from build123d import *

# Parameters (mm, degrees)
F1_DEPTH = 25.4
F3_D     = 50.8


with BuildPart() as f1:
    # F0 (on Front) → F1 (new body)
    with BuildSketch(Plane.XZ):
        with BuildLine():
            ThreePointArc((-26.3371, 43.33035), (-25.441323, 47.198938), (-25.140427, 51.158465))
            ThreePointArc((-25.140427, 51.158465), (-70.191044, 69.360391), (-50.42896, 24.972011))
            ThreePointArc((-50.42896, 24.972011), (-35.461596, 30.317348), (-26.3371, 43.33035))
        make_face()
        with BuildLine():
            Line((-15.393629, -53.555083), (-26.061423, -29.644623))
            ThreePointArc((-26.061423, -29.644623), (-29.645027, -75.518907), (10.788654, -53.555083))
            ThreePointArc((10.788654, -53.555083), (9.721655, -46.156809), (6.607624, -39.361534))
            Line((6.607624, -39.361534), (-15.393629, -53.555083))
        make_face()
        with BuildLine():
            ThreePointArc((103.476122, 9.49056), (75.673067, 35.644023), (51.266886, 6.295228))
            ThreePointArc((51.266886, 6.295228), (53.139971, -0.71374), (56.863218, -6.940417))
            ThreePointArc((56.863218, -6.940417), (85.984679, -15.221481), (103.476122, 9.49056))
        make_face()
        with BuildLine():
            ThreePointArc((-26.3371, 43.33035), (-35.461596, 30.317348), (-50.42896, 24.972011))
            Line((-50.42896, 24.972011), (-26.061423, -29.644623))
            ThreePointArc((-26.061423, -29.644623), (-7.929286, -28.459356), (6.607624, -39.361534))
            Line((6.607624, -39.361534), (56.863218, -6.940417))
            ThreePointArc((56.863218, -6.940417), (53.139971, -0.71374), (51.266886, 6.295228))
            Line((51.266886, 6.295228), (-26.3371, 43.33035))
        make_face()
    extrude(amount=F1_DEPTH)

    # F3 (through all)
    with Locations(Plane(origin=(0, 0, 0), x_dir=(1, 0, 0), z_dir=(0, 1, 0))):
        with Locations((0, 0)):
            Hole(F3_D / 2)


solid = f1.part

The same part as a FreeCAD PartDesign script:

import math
import FreeCAD as App
import Part
import Sketcher

V = App.Vector
Q = App.Units.Quantity

doc = App.newDocument("Part")
params = doc.addObject("Spreadsheet::Sheet", "Params")
for row, (alias, value) in enumerate([
    ("pad1_length", "1 in"),
    ("sketch2_diameter", "2 in"),
    ("hole_diameter", "2 in"),
], start=1):
    params.set(f"A{row}", alias)
    params.set(f"B{row}", "=" + value)
    params.setAlias(f"B{row}", alias)

body = doc.addObject("PartDesign::Body", "Body")
body.AllowCompound = True

# Sketch on XZ plane
sketch1 = body.newObject("Sketcher::SketchObject", "Sketch")
sketch1.AttachmentSupport = (doc.getObject("XZ_Plane"), [""])
sketch1.MapMode = "FlatFace"
sketch1.addGeometry([
    Part.ArcOfCircle(Part.Circle(V(-51, 51, 0), V(0, 0, 1), 26), math.radians(-17.38), math.radians(0)),  # 0
    Part.ArcOfCircle(Part.Circle(V(-51, 51, 0), V(0, 0, 1), 26), math.radians(0), math.radians(272)),  # 1
    Part.LineSegment(V(-50, 25, 0), V(-26, -30, 0)),  # 2
    Part.ArcOfCircle(Part.Circle(V(-15, -54, 0), V(0, 0, 1), 26), math.radians(33), math.radians(114)),  # 3
    Part.LineSegment(V(7, -39, 0), V(57, -7, 0)),  # 4
    Part.ArcOfCircle(Part.Circle(V(77, 9, 0), V(0, 0, 1), 26), math.radians(-141), math.radians(0)),  # 5
    Part.ArcOfCircle(Part.Circle(V(77, 9, 0), V(0, 0, 1), 26), math.radians(0), math.radians(187)),  # 6
    Part.LineSegment(V(51, 6, 0), V(-26, 43, 0)),  # 7
    Part.LineSegment(V(-15, -54, 0), V(-26, -30, 0)),  # 8
    Part.ArcOfCircle(Part.Circle(V(-15, -54, 0), V(0, 0, 1), 26), math.radians(114), math.radians(360)),  # 9
    Part.ArcOfCircle(Part.Circle(V(-15, -54, 0), V(0, 0, 1), 26), math.radians(0), math.radians(33)),  # 10
    Part.LineSegment(V(7, -39, 0), V(-15, -54, 0)),  # 11
], False)
sketch1.addConstraint([
    Sketcher.Constraint("Tangent", 0, 2, 1, 1),
    Sketcher.Constraint("Coincident", 1, 2, 2, 1),
    Sketcher.Constraint("Coincident", 2, 2, 3, 2),
    Sketcher.Constraint("Coincident", 3, 1, 4, 1),
    Sketcher.Constraint("Coincident", 4, 2, 5, 1),
    Sketcher.Constraint("Tangent", 5, 2, 6, 1),
    Sketcher.Constraint("Coincident", 6, 2, 7, 1),
    Sketcher.Constraint("Coincident", 7, 2, 0, 1),
    Sketcher.Constraint("Coincident", 8, 2, 9, 1),
    Sketcher.Constraint("Tangent", 9, 2, 10, 1),
    Sketcher.Constraint("Coincident", 10, 2, 11, 1),
    Sketcher.Constraint("Coincident", 11, 2, 8, 1),
    Sketcher.Constraint("Coincident", 9, 3, 3, 3),
    Sketcher.Constraint("Coincident", 8, 2, 2, 2),
    Sketcher.Constraint("Coincident", 10, 2, 3, 1),
    Sketcher.Constraint("Coincident", 11, 2, 3, 3),
    Sketcher.Constraint("Equal", 5, 6),
    Sketcher.Constraint("Parallel", 2, 8),
    Sketcher.Constraint("Parallel", 4, 11),
    Sketcher.Constraint("Horizontal", 1, 3, 0, 2),
    Sketcher.Constraint("Horizontal", 6, 3, 5, 2),
    Sketcher.Constraint("Horizontal", 10, 3, 9, 2),
    Sketcher.Constraint("Equal", 2, 4),
    Sketcher.Constraint("Radius", 5, 26.202399),
    Sketcher.Constraint("Radius", 0, 26.202405),
    Sketcher.Constraint("Radius", 1, 26.202396),
    Sketcher.Constraint("Radius", 3, 26.182284),
    Sketcher.Constraint("DistanceX", 7, 2, -1, 1, 26.3371),
    Sketcher.Constraint("DistanceX", 0, 3, 10, 3, 35.9492),
    Sketcher.Constraint("DistanceX", 3, 1, 5, 3, 70.666099),
    Sketcher.Constraint("Distance", 7, 85.988249),
    Sketcher.Constraint("DistanceX", 0, 3, -1, 1, 51.342832),
    Sketcher.Constraint("DistanceY", -1, 1, 5, 3, 9.49056),
    Sketcher.Constraint("DistanceX", 1, 2, -1, 1, 50.42896),
    Sketcher.Constraint("DistanceY", -1, 1, 1, 2, 24.972011),
    Sketcher.Constraint("DistanceX", -1, 1, 4, 2, 56.863218),
])
pad1 = body.newObject("PartDesign::Pad", "Pad")
pad1.Profile = sketch1
pad1.setExpression("Length", "Params.pad1_length")

# Sketch on XZ plane
sketch2 = body.newObject("Sketcher::SketchObject", "Sketch001")
sketch2.AttachmentSupport = (doc.getObject("XZ_Plane"), [""])
sketch2.MapMode = "FlatFace"
sketch2.addGeometry(Part.Circle(V(0, 0, 0), V(0, 0, 1), 25), False)
sketch2.addConstraint([
    Sketcher.Constraint("Coincident", 0, 3, -1, 1),
    Sketcher.Constraint("Diameter", 0, Q("2 in")),
])
sketch2.setExpression("Constraints[1]", "Params.sketch2_diameter")
doc.recompute()
hole = body.newObject("PartDesign::Hole", "Hole")
hole.Profile = sketch2
hole.ThreadType = "None"
hole.setExpression("Diameter", "Params.hole_diameter")
hole.DepthType = "ThroughAll"
hole.Reversed = True

doc.recompute()
